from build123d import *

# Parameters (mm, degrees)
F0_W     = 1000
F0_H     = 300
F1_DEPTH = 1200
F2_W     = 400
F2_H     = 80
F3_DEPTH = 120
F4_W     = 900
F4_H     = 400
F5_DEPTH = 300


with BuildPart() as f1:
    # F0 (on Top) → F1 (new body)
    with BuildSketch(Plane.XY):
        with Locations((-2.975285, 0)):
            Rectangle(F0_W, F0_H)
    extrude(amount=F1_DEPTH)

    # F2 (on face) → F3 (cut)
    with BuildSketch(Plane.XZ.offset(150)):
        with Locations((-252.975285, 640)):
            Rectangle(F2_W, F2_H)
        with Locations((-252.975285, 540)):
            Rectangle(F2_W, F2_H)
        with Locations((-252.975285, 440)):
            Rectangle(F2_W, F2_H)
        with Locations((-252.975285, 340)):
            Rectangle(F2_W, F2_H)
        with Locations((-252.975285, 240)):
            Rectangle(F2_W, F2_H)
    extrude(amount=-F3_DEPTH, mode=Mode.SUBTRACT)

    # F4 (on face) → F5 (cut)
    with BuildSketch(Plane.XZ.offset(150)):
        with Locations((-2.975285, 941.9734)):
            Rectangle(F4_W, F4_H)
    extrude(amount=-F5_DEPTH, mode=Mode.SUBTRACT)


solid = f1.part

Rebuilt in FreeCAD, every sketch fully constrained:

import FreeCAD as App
import Part
import Sketcher


def add_polygon(sketch, points):
    """Adds a closed chain of lines whose ends are joined by coincident constraints."""
    first, n = sketch.GeometryCount, len(points)
    for a, b in zip(points, points[1:] + points[:1]):
        sketch.addGeometry(Part.LineSegment(App.Vector(*a, 0), App.Vector(*b, 0)), False)
    for i in range(n):
        sketch.addConstraint(Sketcher.Constraint("Coincident", first + i, 2, first + (i + 1) % n, 1))

doc = App.newDocument("Part")
body = doc.addObject("PartDesign::Body", "Body")

# Sketch on XY plane
sketch1 = doc.addObject("Sketcher::SketchObject", "Sketch")
body.addObject(sketch1)
sketch1.AttachmentSupport = (doc.XY_Plane, [""])
sketch1.MapMode = "FlatFace"
add_polygon(sketch1, [(-503, 150), (-503, -150), (497, -150), (497, 150)])  # lines 0-3
sketch1.addConstraint([
    Sketcher.Constraint("Vertical", 0),
    Sketcher.Constraint("Horizontal", 1),
    Sketcher.Constraint("Vertical", 2),
    Sketcher.Constraint("Horizontal", 3),
    Sketcher.Constraint("DistanceX", 1, 1, 1, 2, 1000.0),
    Sketcher.Constraint("DistanceY", 0, 2, 0, 1, 300.0),
    Sketcher.Constraint("DistanceY", 0, 2, -1, 1, 150.0),
    Sketcher.Constraint("DistanceX", 0, 2, -1, 1, 502.975285),
])
pad1 = doc.addObject("PartDesign::Pad", "Pad")
body.addObject(pad1)
pad1.Profile = sketch1
pad1.Length = 1200

# Sketch on XZ plane
sketch2 = doc.addObject("Sketcher::SketchObject", "Sketch001")
body.addObject(sketch2)
sketch2.AttachmentSupport = (doc.XZ_Plane, [""])
sketch2.MapMode = "FlatFace"
sketch2.AttachmentOffset = App.Placement(App.Vector(0, 0, 150), App.Rotation())
add_polygon(sketch2, [(-453, 680), (-453, 600), (-53, 600), (-53, 680)])  # lines 0-3
add_polygon(sketch2, [(-453, 580), (-453, 500), (-53, 500), (-53, 580)])  # lines 4-7
add_polygon(sketch2, [(-453, 480), (-453, 400), (-53, 400), (-53, 480)])  # lines 8-11
add_polygon(sketch2, [(-453, 380), (-453, 300), (-53, 300), (-53, 380)])  # lines 12-15
add_polygon(sketch2, [(-453, 280), (-453, 200), (-53, 200), (-53, 280)])  # lines 16-19
sketch2.addConstraint([
    Sketcher.Constraint("Vertical", 0),
    Sketcher.Constraint("Horizontal", 1),
    Sketcher.Constraint("Vertical", 2),
    Sketcher.Constraint("Horizontal", 3),
    Sketcher.Constraint("Vertical", 4),
    Sketcher.Constraint("Horizontal", 5),
    Sketcher.Constraint("Vertical", 6),
    Sketcher.Constraint("Horizontal", 7),
    Sketcher.Constraint("Vertical", 8),
    Sketcher.Constraint("Horizontal", 9),
    Sketcher.Constraint("Vertical", 10),
    Sketcher.Constraint("Horizontal", 11),
    Sketcher.Constraint("Vertical", 12),
    Sketcher.Constraint("Horizontal", 13),
    Sketcher.Constraint("Vertical", 14),
    Sketcher.Constraint("Horizontal", 15),
    Sketcher.Constraint("Vertical", 16),
    Sketcher.Constraint("Horizontal", 17),
    Sketcher.Constraint("Vertical", 18),
    Sketcher.Constraint("Horizontal", 19),
    Sketcher.Constraint("Vertical", 3, 2, 4, 2),
    Sketcher.Constraint("Vertical", 2, 2, 5, 2),
    Sketcher.Constraint("Vertical", 7, 2, 8, 2),
    Sketcher.Constraint("Vertical", 6, 2, 9, 2),
    Sketcher.Constraint("Vertical", 11, 2, 12, 2),
    Sketcher.Constraint("Vertical", 10, 2, 13, 2),
    Sketcher.Constraint("Vertical", 15, 2, 16, 2),
    Sketcher.Constraint("Vertical", 14, 2, 17, 2),
    Sketcher.Constraint("Equal", 2, 4),
    Sketcher.Constraint("Equal", 6, 8),
    Sketcher.Constraint("Equal", 10, 12),
    Sketcher.Constraint("Equal", 14, 16),
    Sketcher.Constraint("DistanceX", 1, 1, 1, 2, 400.0),
    Sketcher.Constraint("DistanceY", 0, 2, 0, 1, 80.0),
    Sketcher.Constraint("DistanceY", -1, 1, 0, 2, 600.0),
    Sketcher.Constraint("DistanceY", -1, 1, 4, 2, 500.0),
    Sketcher.Constraint("DistanceY", -1, 1, 8, 2, 400.0),
    Sketcher.Constraint("DistanceY", -1, 1, 12, 2, 300.0),
    Sketcher.Constraint("DistanceY", -1, 1, 16, 2, 200.0),
    Sketcher.Constraint("DistanceX", 0, 2, -1, 1, 452.975285),
])
pocket1 = doc.addObject("PartDesign::Pocket", "Pocket")
body.addObject(pocket1)
pocket1.Profile = sketch2
pocket1.Length = 120

# Sketch on XZ plane
sketch3 = doc.addObject("Sketcher::SketchObject", "Sketch002")
body.addObject(sketch3)
sketch3.AttachmentSupport = (doc.XZ_Plane, [""])
sketch3.MapMode = "FlatFace"
sketch3.AttachmentOffset = App.Placement(App.Vector(0, 0, 150), App.Rotation())
add_polygon(sketch3, [(-453, 1142), (-453, 742), (447, 742), (447, 1142)])  # lines 0-3
sketch3.addConstraint([
    Sketcher.Constraint("Vertical", 0),
    Sketcher.Constraint("Horizontal", 1),
    Sketcher.Constraint("Vertical", 2),
    Sketcher.Constraint("Horizontal", 3),
    Sketcher.Constraint("DistanceX", 1, 1, 1, 2, 900.0),
    Sketcher.Constraint("DistanceY", 0, 2, 0, 1, 400.0),
    Sketcher.Constraint("DistanceY", -1, 1, 0, 2, 741.9734),
    Sketcher.Constraint("DistanceX", 0, 2, -1, 1, 452.975285),
])
pocket2 = doc.addObject("PartDesign::Pocket", "Pocket001")
body.addObject(pocket2)
pocket2.Profile = sketch3
pocket2.Length = 300

doc.recompute()
